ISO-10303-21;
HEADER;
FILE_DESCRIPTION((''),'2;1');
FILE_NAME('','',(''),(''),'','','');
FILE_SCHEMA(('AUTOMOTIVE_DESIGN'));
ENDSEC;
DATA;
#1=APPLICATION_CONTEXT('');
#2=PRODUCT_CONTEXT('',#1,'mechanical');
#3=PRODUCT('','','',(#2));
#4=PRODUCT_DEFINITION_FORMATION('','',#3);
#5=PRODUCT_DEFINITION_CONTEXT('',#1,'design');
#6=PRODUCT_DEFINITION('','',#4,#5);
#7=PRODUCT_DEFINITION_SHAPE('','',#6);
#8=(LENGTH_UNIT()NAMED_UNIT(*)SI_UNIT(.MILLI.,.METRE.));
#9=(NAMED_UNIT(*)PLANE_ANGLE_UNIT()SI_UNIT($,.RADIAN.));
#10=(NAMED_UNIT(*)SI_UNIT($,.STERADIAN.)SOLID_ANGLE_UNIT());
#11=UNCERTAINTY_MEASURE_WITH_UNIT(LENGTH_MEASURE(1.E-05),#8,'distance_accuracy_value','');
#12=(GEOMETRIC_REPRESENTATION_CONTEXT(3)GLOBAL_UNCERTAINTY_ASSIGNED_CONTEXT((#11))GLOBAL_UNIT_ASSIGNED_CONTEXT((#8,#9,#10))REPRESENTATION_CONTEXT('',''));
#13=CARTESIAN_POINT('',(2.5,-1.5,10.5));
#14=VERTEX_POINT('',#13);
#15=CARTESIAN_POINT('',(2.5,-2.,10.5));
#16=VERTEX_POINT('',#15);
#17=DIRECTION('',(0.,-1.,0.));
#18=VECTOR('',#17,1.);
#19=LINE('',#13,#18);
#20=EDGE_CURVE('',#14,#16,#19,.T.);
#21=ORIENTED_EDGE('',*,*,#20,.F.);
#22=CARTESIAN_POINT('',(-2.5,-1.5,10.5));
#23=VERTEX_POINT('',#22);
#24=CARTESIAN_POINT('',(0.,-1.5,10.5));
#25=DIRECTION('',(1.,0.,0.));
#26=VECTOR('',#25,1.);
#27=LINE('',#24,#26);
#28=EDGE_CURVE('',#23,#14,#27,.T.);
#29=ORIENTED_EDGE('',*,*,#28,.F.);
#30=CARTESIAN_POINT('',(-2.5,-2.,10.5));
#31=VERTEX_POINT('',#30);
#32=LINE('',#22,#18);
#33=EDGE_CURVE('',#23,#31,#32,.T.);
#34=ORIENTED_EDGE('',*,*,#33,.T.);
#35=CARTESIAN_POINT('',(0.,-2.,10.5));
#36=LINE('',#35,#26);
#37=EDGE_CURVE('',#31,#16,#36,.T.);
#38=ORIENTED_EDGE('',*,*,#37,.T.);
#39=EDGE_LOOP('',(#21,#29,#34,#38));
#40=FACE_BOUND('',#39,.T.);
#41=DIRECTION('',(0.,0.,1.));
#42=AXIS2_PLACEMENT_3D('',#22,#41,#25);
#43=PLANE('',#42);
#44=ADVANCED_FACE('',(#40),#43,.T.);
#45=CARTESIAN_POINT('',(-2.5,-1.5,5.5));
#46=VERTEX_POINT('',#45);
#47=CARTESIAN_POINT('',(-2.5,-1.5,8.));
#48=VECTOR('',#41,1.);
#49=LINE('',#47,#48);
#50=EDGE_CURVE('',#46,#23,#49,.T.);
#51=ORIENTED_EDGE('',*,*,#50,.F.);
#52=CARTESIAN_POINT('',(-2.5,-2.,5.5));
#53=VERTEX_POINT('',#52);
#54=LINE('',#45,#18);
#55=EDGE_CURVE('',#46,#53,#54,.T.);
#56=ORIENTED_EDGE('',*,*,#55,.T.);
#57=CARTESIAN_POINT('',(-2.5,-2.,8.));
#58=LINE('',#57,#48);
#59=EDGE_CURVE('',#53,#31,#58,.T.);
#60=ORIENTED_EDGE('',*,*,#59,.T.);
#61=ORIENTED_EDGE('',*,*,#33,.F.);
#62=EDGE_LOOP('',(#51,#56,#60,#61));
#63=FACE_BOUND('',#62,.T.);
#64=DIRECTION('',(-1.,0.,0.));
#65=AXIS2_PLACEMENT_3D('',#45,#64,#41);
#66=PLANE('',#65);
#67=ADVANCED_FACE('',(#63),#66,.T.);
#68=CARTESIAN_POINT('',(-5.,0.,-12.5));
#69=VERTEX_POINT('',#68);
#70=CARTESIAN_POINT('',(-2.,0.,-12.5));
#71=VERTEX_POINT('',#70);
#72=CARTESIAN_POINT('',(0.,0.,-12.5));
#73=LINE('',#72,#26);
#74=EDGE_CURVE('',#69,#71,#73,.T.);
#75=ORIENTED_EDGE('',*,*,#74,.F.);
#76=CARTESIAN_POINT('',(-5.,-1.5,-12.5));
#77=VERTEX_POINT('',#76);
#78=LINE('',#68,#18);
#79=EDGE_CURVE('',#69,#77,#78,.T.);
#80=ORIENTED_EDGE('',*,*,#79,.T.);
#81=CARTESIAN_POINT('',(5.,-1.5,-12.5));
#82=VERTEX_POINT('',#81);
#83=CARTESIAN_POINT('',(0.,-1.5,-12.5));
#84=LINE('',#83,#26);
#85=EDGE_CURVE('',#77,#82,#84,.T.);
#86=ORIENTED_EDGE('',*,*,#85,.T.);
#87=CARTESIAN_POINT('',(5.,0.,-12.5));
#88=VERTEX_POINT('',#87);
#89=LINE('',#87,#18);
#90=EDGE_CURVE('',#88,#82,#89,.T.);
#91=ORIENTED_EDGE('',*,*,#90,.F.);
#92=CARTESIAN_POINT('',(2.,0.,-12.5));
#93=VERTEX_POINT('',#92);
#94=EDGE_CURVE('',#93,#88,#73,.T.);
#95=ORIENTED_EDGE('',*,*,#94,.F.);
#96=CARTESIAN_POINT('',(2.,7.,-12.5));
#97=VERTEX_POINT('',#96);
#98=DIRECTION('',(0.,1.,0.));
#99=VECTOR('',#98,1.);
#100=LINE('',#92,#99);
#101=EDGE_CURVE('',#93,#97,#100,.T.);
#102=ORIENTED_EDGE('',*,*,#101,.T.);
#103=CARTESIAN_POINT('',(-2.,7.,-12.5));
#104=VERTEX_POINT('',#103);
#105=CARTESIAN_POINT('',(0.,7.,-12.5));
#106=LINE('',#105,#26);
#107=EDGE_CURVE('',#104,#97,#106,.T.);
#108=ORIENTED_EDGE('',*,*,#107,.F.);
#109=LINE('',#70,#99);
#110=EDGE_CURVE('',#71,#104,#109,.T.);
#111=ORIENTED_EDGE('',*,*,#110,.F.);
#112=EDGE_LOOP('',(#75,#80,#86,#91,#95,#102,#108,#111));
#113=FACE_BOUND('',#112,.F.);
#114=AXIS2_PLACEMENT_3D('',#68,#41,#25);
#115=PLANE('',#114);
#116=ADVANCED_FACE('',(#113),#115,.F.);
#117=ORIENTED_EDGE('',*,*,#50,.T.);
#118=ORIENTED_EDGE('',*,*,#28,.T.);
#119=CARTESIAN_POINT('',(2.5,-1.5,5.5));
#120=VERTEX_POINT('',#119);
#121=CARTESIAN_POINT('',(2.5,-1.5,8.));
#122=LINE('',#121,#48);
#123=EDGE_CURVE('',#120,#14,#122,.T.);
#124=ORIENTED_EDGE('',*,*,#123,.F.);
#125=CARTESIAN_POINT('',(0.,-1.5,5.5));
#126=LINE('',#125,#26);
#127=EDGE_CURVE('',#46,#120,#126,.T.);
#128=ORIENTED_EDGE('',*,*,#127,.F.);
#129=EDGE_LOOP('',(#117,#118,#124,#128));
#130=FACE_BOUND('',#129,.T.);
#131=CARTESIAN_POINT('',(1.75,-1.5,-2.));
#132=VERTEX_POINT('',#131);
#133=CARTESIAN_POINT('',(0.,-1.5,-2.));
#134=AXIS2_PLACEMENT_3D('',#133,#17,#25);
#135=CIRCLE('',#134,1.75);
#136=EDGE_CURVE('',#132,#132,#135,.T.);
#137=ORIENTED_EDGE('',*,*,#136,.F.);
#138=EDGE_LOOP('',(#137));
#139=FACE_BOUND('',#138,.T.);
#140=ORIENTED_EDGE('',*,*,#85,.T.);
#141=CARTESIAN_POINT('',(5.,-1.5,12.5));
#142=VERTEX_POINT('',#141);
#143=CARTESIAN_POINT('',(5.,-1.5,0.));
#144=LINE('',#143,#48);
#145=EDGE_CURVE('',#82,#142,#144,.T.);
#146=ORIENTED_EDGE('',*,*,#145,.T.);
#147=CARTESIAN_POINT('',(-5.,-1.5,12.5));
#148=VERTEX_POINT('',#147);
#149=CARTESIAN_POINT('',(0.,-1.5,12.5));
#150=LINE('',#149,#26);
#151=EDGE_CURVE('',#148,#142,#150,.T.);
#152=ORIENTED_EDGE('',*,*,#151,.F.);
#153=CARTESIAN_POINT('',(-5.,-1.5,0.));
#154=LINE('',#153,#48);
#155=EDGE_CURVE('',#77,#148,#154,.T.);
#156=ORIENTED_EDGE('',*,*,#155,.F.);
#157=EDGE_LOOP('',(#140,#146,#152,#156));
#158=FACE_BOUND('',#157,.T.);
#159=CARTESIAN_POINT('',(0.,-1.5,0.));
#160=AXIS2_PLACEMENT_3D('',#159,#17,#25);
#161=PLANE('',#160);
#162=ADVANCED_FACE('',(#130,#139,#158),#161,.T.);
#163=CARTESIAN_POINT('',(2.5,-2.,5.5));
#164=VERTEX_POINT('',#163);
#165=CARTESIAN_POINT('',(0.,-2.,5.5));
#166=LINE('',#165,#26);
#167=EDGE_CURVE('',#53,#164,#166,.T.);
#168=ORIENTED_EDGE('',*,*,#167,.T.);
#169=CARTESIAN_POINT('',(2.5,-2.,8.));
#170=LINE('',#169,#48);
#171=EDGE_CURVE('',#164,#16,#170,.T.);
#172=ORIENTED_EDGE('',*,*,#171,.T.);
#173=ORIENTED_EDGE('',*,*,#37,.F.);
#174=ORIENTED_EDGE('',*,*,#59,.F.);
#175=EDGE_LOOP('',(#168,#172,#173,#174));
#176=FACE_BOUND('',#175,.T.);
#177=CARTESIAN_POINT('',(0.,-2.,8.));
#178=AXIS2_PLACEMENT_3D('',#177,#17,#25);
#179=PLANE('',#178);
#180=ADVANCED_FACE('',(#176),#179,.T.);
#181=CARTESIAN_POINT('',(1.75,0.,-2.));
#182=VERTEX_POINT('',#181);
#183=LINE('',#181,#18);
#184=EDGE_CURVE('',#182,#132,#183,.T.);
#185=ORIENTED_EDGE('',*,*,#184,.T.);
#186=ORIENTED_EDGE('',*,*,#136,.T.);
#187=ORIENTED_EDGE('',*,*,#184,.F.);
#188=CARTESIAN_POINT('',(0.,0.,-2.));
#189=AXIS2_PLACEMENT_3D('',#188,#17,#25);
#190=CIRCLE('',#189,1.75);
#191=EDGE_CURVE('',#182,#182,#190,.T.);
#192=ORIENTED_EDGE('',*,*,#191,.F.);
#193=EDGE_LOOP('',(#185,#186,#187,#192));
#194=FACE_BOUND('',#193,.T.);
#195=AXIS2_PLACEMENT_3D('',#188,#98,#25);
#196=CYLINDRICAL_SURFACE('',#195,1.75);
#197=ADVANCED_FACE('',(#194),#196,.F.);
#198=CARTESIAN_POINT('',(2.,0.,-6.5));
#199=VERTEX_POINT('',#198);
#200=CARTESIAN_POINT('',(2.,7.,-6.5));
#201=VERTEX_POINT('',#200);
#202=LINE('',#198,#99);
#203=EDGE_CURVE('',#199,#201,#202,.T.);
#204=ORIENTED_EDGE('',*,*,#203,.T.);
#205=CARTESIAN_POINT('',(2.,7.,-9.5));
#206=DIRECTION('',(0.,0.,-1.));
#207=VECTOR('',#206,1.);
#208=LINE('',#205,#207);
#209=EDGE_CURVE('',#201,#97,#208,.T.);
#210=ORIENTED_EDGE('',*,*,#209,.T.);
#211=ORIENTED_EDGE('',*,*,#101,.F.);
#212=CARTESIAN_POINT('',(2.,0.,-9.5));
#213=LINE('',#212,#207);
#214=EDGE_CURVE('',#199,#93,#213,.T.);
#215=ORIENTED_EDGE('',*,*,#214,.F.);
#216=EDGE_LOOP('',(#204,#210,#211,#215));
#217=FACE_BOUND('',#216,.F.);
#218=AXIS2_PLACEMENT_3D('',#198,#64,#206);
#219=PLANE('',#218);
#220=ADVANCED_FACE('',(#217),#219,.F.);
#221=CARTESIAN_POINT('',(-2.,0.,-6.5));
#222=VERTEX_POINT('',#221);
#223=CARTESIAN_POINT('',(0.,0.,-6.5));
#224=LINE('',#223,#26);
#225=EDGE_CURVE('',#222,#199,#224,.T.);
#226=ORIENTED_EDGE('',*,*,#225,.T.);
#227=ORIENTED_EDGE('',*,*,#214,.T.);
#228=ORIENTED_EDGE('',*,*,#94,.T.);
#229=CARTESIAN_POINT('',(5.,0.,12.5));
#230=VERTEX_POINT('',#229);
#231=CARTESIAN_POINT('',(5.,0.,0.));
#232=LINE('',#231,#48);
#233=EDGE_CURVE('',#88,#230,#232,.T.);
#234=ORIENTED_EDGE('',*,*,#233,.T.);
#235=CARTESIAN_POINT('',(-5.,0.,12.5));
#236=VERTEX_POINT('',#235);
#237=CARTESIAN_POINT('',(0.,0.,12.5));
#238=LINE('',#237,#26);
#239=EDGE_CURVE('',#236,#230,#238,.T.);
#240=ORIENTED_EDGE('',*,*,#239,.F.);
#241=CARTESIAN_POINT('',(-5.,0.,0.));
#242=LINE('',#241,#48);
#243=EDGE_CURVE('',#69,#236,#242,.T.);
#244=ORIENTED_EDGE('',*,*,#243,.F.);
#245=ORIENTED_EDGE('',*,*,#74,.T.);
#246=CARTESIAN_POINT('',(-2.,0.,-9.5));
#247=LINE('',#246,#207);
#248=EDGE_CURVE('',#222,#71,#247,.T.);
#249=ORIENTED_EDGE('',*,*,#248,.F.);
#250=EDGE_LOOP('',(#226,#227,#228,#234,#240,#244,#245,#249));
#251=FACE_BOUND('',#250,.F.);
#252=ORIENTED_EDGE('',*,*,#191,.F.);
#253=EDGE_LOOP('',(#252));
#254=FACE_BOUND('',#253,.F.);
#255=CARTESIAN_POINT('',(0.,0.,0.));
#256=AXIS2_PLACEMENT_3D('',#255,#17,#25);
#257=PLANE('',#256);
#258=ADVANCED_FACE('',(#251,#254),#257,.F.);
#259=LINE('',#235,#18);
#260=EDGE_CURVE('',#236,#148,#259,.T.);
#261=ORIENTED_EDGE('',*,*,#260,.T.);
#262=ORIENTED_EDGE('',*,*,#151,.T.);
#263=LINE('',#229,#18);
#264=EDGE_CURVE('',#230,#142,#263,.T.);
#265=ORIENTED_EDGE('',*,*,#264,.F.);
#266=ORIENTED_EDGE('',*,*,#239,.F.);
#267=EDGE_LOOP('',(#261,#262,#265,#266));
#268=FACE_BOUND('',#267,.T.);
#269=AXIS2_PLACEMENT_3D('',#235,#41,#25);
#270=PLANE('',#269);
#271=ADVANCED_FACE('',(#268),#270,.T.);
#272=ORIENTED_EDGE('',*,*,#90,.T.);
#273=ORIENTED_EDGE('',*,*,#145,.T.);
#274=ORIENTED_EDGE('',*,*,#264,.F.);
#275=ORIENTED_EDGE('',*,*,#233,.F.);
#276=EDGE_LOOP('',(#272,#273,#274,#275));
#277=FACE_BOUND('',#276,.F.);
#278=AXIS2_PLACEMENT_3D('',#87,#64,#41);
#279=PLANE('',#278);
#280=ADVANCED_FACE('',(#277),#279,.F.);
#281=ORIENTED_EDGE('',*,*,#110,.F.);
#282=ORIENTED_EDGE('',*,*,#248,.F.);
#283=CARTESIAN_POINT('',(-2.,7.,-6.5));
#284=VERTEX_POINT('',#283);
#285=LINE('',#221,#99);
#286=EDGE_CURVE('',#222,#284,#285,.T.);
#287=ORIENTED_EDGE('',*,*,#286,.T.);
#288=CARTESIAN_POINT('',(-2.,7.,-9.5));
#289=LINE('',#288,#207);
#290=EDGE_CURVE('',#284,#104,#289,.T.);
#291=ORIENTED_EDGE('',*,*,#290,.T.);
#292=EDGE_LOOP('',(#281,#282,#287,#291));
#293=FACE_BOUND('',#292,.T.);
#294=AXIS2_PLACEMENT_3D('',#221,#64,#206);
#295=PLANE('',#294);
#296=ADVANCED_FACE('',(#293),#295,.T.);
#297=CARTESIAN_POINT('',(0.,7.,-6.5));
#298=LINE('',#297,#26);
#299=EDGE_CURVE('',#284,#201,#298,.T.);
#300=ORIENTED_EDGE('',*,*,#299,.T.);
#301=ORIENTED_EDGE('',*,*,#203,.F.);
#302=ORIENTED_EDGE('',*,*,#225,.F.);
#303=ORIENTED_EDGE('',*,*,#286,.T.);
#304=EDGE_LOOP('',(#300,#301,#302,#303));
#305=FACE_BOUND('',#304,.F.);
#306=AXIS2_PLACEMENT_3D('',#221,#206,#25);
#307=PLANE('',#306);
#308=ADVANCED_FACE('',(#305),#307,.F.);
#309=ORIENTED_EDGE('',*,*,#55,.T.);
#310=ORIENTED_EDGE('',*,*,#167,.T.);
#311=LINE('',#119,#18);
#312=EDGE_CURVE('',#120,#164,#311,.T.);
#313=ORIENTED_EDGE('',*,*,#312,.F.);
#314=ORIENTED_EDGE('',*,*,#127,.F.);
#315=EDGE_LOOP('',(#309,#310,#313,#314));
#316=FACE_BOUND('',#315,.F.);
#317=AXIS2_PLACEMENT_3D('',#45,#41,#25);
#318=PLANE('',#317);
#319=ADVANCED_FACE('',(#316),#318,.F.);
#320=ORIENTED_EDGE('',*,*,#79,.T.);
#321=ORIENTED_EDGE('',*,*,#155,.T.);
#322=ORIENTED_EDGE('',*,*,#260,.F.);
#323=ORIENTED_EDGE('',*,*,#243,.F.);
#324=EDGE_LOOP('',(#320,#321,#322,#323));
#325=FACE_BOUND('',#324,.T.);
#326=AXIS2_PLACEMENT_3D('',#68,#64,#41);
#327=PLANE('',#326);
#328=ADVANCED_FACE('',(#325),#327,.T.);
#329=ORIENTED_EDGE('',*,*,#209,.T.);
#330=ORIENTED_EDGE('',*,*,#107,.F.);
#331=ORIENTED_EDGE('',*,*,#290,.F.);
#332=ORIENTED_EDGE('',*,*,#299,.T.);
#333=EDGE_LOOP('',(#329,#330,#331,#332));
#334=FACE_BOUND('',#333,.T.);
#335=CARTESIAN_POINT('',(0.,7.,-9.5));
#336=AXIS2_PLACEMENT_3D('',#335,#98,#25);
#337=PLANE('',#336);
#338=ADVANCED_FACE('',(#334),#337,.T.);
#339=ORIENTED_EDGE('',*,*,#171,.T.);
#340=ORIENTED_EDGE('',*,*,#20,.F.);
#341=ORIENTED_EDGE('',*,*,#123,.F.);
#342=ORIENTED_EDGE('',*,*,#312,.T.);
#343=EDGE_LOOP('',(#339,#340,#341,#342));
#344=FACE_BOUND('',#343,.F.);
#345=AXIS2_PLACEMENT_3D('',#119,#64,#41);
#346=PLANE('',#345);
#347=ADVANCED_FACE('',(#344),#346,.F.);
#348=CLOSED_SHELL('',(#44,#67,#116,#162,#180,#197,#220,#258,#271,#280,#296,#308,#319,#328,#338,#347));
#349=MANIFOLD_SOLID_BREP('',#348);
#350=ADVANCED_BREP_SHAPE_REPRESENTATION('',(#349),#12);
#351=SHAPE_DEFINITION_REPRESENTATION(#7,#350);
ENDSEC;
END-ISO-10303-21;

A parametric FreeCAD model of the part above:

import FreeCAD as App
import Part
import Sketcher
Q = App.Units.Quantity

doc = App.newDocument("Part")
params = doc.addObject("Spreadsheet::Sheet", "Params")
for row, (alias, value) in enumerate([
    ("sketch1_diameter", "3.5 mm"),
    ("sketch1_width", "10 mm"),
    ("sketch1_height", "25 mm"),
    ("pad1_length", "1.5 mm"),
    ("sketch2_width", "5 mm"),
    ("pad2_length", "0.5 mm"),
    ("sketch3_width", "4 mm"),
    ("sketch3_height", "6 mm"),
    ("pad3_length", "7 mm"),
], start=1):
    params.set(f"A{row}", alias)
    params.set(f"B{row}", "=" + value)
    params.setAlias(f"B{row}", alias)

body = doc.addObject("PartDesign::Body", "Body")

# Sketch on XZ plane
sketch1 = body.newObject("Sketcher::SketchObject", "Sketch")
sketch1.AttachmentSupport = (doc.getObject("XZ_Plane"), [""])
sketch1.MapMode = "FlatFace"
sketch1.addGeometry(Part.LineSegment(App.Vector(-5, 12.5, 0), App.Vector(-5, -12.5, 0)), False)
sketch1.addGeometry(Part.LineSegment(App.Vector(-5, -12.5, 0), App.Vector(5, -12.5, 0)), False)
sketch1.addGeometry(Part.LineSegment(App.Vector(5, -12.5, 0), App.Vector(5, 12.5, 0)), False)
sketch1.addGeometry(Part.LineSegment(App.Vector(5, 12.5, 0), App.Vector(-5, 12.5, 0)), False)
sketch1.addGeometry(Part.Circle(App.Vector(0, -2, 0), App.Vector(0, 0, 1), 1.8), False)
sketch1.addConstraint(Sketcher.Constraint("Coincident", 0, 2, 1, 1))
sketch1.addConstraint(Sketcher.Constraint("Coincident", 1, 2, 2, 1))
sketch1.addConstraint(Sketcher.Constraint("Coincident", 2, 2, 3, 1))
sketch1.addConstraint(Sketcher.Constraint("Coincident", 3, 2, 0, 1))
sketch1.addConstraint(Sketcher.Constraint("Vertical", 0))
sketch1.addConstraint(Sketcher.Constraint("Horizontal", 1))
sketch1.addConstraint(Sketcher.Constraint("Vertical", 2))
sketch1.addConstraint(Sketcher.Constraint("Horizontal", 3))
sketch1.addConstraint(Sketcher.Constraint("Symmetric", 0, 2, 2, 2, -1, 1))
sketch1.addConstraint(Sketcher.Constraint("PointOnObject", 4, 3, -2))
sketch1.addConstraint(Sketcher.Constraint("Diameter", 4, Q("3.5 mm")))
sketch1.addConstraint(Sketcher.Constraint("DistanceX", 1, 1, 1, 2, Q("10 mm")))
sketch1.addConstraint(Sketcher.Constraint("DistanceY", 0, 2, 0, 1, Q("25 mm")))
sketch1.addConstraint(Sketcher.Constraint("DistanceY", 4, 3, -1, 1, Q("2 mm")))
sketch1.setExpression("Constraints[10]", "Params.sketch1_diameter")
sketch1.setExpression("Constraints[11]", "Params.sketch1_width")
sketch1.setExpression("Constraints[12]", "Params.sketch1_height")
pad1 = body.newObject("PartDesign::Pad", "Pad")
pad1.Profile = sketch1
pad1.setExpression("Length", "Params.pad1_length")

# Sketch on XZ plane
sketch2 = body.newObject("Sketcher::SketchObject", "Sketch001")
sketch2.AttachmentSupport = (doc.getObject("XZ_Plane"), [""])
sketch2.MapMode = "FlatFace"
sketch2.AttachmentOffset = App.Placement(App.Vector(0, 0, 1.5), App.Rotation())
sketch2.addGeometry(Part.LineSegment(App.Vector(-2, 10, 0), App.Vector(-2, 6, 0)), False)
sketch2.addGeometry(Part.LineSegment(App.Vector(-2, 6, 0), App.Vector(2, 6, 0)), False)
sketch2.addGeometry(Part.LineSegment(App.Vector(2, 6, 0), App.Vector(2, 10, 0)), False)
sketch2.addGeometry(Part.LineSegment(App.Vector(2, 10, 0), App.Vector(-2, 10, 0)), False)
sketch2.addConstraint(Sketcher.Constraint("Coincident", 0, 2, 1, 1))
sketch2.addConstraint(Sketcher.Constraint("Coincident", 1, 2, 2, 1))
sketch2.addConstraint(Sketcher.Constraint("Coincident", 2, 2, 3, 1))
sketch2.addConstraint(Sketcher.Constraint("Coincident", 3, 2, 0, 1))
sketch2.addConstraint(Sketcher.Constraint("Vertical", 0))
sketch2.addConstraint(Sketcher.Constraint("Horizontal", 1))
sketch2.addConstraint(Sketcher.Constraint("Vertical", 2))
sketch2.addConstraint(Sketcher.Constraint("Horizontal", 3))
sketch2.addConstraint(Sketcher.Constraint("Equal", 3, 0))
sketch2.addConstraint(Sketcher.Constraint("DistanceX", 1, 1, 1, 2, Q("5 mm")))
sketch2.addConstraint(Sketcher.Constraint("DistanceX", 0, 2, -1, 1, Q("2.5 mm")))
sketch2.addConstraint(Sketcher.Constraint("DistanceY", -1, 1, 0, 2, Q("5.5 mm")))
sketch2.setExpression("Constraints[9]", "Params.sketch2_width")
pad2 = body.newObject("PartDesign::Pad", "Pad001")
pad2.Profile = sketch2
pad2.setExpression("Length", "Params.pad2_length")

# Sketch on XZ plane
sketch3 = body.newObject("Sketcher::SketchObject", "Sketch002")
sketch3.AttachmentSupport = (doc.getObject("XZ_Plane"), [""])
sketch3.MapMode = "FlatFace"
sketch3.addGeometry(Part.LineSegment(App.Vector(-2, -12.5, 0), App.Vector(-2, -6.5, 0)), False)
sketch3.addGeometry(Part.LineSegment(App.Vector(-2, -6.5, 0), App.Vector(2, -6.5, 0)), False)
sketch3.addGeometry(Part.LineSegment(App.Vector(2, -6.5, 0), App.Vector(2, -12.5, 0)), False)
sketch3.addGeometry(Part.LineSegment(App.Vector(2, -12.5, 0), App.Vector(-2, -12.5, 0)), False)
sketch3.addConstraint(Sketcher.Constraint("Coincident", 0, 2, 1, 1))
sketch3.addConstraint(Sketcher.Constraint("Coincident", 1, 2, 2, 1))
sketch3.addConstraint(Sketcher.Constraint("Coincident", 2, 2, 3, 1))
sketch3.addConstraint(Sketcher.Constraint("Coincident", 3, 2, 0, 1))
sketch3.addConstraint(Sketcher.Constraint("Vertical", 0))
sketch3.addConstraint(Sketcher.Constraint("Horizontal", 1))
sketch3.addConstraint(Sketcher.Constraint("Vertical", 2))
sketch3.addConstraint(Sketcher.Constraint("Horizontal", 3))
sketch3.addConstraint(Sketcher.Constraint("DistanceX", 1, 1, 1, 2, Q("4 mm")))
sketch3.addConstraint(Sketcher.Constraint("DistanceY", 0, 1, 0, 2, Q("6 mm")))
sketch3.addConstraint(Sketcher.Constraint("DistanceX", 0, 2, -1, 1, Q("2 mm")))
sketch3.addConstraint(Sketcher.Constraint("DistanceY", 0, 2, -1, 1, Q("6.5 mm")))
sketch3.setExpression("Constraints[8]", "Params.sketch3_width")
sketch3.setExpression("Constraints[9]", "Params.sketch3_height")
pad3 = body.newObject("PartDesign::Pad", "Pad002")
pad3.Profile = sketch3
pad3.setExpression("Length", "Params.pad3_length")
pad3.Reversed = True

doc.recompute()
